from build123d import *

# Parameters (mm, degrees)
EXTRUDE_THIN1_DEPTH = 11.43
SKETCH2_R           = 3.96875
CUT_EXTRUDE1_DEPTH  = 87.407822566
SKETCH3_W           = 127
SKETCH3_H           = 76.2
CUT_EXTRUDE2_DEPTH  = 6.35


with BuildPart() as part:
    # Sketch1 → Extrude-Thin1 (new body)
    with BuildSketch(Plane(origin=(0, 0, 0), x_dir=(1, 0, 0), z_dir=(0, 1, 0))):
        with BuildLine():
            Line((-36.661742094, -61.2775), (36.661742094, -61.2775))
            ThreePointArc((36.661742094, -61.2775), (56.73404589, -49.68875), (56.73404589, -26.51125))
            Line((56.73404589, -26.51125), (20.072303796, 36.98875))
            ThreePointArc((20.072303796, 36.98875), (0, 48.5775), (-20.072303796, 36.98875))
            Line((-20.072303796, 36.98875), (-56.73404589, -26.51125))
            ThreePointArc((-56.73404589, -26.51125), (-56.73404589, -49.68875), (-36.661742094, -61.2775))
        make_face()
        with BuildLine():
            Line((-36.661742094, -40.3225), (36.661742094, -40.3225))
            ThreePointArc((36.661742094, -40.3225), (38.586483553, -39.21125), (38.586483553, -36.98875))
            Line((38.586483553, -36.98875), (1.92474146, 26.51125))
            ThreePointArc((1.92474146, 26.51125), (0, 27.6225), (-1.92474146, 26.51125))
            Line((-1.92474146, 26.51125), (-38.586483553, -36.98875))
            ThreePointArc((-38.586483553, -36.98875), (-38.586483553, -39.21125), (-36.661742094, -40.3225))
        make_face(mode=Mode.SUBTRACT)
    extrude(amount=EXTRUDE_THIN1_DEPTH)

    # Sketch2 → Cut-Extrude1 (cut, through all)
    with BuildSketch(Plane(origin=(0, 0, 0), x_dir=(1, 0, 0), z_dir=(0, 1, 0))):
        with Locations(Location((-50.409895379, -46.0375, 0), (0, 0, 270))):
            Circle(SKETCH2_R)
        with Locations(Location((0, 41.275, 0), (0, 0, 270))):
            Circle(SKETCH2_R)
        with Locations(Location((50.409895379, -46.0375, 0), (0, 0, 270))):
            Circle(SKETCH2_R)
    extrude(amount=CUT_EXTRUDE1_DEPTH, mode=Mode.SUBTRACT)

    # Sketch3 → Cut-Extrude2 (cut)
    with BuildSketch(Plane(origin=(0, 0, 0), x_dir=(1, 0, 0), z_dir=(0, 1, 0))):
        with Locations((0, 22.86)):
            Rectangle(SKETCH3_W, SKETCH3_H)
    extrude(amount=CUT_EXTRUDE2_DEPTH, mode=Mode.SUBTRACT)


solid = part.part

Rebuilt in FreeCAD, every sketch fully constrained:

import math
import FreeCAD as App
import Part
import Sketcher
Q = App.Units.Quantity

doc = App.newDocument("Part")
body = doc.addObject("PartDesign::Body", "Body")

sketch1 = body.newObject("Sketcher::SketchObject", "Sketch")
sketch1.AttachmentSupport = (doc.getObject("XZ_Plane"), [""])
sketch1.MapMode = "FlatFace"
sketch1.addGeometry([
    Part.LineSegment(App.Vector(-36.7, 61.3, 0), App.Vector(36.7, 61.3, 0)),
    Part.ArcOfCircle(Part.Circle(App.Vector(36.7, 38.1, 0), App.Vector(0, 0, 1), 23.2), math.radians(-30), math.radians(90)),
    Part.LineSegment(App.Vector(56.7, 26.5, 0), App.Vector(20.1, -37, 0)),
    Part.ArcOfCircle(Part.Circle(App.Vector(0, -25.4, 0), App.Vector(0, 0, 1), 23.2), math.radians(-150), math.radians(-30)),
    Part.LineSegment(App.Vector(-20.1, -37, 0), App.Vector(-56.7, 26.5, 0)),
    Part.ArcOfCircle(Part.Circle(App.Vector(-36.7, 38.1, 0), App.Vector(0, 0, 1), 23.2), math.radians(90), math.radians(210)),
    Part.LineSegment(App.Vector(36.7, 40.3, 0), App.Vector(-36.7, 40.3, 0)),
    Part.ArcOfCircle(Part.Circle(App.Vector(-36.7, 38.1, 0), App.Vector(0, 0, 1), 2.2), math.radians(90), math.radians(210)),
    Part.LineSegment(App.Vector(-38.6, 37, 0), App.Vector(-1.9, -26.5, 0)),
    Part.ArcOfCircle(Part.Circle(App.Vector(0, -25.4, 0), App.Vector(0, 0, 1), 2.2), math.radians(-150), math.radians(-30)),
    Part.LineSegment(App.Vector(1.9, -26.5, 0), App.Vector(38.6, 37, 0)),
    Part.ArcOfCircle(Part.Circle(App.Vector(36.7, 38.1, 0), App.Vector(0, 0, 1), 2.2), math.radians(-30), math.radians(90)),
], False)
sketch1.addConstraint([
    Sketcher.Constraint("Tangent", 0, 2, 1, 2),
    Sketcher.Constraint("Tangent", 1, 1, 2, 1),
    Sketcher.Constraint("Tangent", 2, 2, 3, 2),
    Sketcher.Constraint("Tangent", 3, 1, 4, 1),
    Sketcher.Constraint("Tangent", 4, 2, 5, 2),
    Sketcher.Constraint("Tangent", 5, 1, 0, 1),
    Sketcher.Constraint("Tangent", 6, 2, 7, 1),
    Sketcher.Constraint("Tangent", 7, 2, 8, 1),
    Sketcher.Constraint("Tangent", 8, 2, 9, 1),
    Sketcher.Constraint("Tangent", 9, 2, 10, 1),
    Sketcher.Constraint("Tangent", 10, 2, 11, 1),
    Sketcher.Constraint("Tangent", 11, 2, 6, 1),
    Sketcher.Constraint("Horizontal", 0),
    Sketcher.Constraint("Horizontal", 6),
    Sketcher.Constraint("Coincident", 7, 3, 5, 3),
    Sketcher.Constraint("Coincident", 9, 3, 3, 3),
    Sketcher.Constraint("Coincident", 11, 3, 1, 3),
    Sketcher.Constraint("Equal", 1, 3),
    Sketcher.Constraint("Equal", 3, 5),
    Sketcher.Constraint("Equal", 7, 9),
    Sketcher.Constraint("Symmetric", 2, 2, 3, 1, -2),
    Sketcher.Constraint("DistanceY", 3, 3, -1, 1, Q("1 in")),
    Sketcher.Constraint("Angle", 2, Q("-120 deg")),
    Sketcher.Constraint("DistanceY", -1, 1, 1, 3, Q("1.5 in")),
    Sketcher.Constraint("Radius", 1, Q("0.9125 in")),
    Sketcher.Constraint("Radius", 7, Q("0.0875 in")),
])
pad1 = body.newObject("PartDesign::Pad", "Pad")
pad1.Profile = sketch1
pad1.Length = Q("0.45 in")
pad1.Reversed = True

sketch2 = body.newObject("Sketcher::SketchObject", "Sketch001")
sketch2.AttachmentSupport = (doc.getObject("XZ_Plane"), [""])
sketch2.MapMode = "FlatFace"
sketch2.addGeometry([
    Part.Circle(App.Vector(-50.4, 46, 0), App.Vector(0, 0, 1), 4),
    Part.Circle(App.Vector(0, -41.3, 0), App.Vector(0, 0, 1), 4),
    Part.Circle(App.Vector(50.4, 46, 0), App.Vector(0, 0, 1), 4),
], False)
sketch2.addConstraint([
    Sketcher.Constraint("Equal", 0, 1),
    Sketcher.Constraint("Equal", 1, 2),
    Sketcher.Constraint("Symmetric", 0, 3, 2, 3, -2),
    Sketcher.Constraint("PointOnObject", 1, 3, -2),
    Sketcher.Constraint("Diameter", 0, Q("0.3125 in")),
    Sketcher.Constraint("DistanceY", -1, 1, 0, 3, Q("1.8125 in")),
    Sketcher.Constraint("DistanceY", 1, 3, -1, 1, Q("1.625 in")),
    Sketcher.Constraint("DistanceX", 0, 3, 2, 3, 100.819791),
])
pocket1 = body.newObject("PartDesign::Pocket", "Pocket")
pocket1.Profile = sketch2
pocket1.Type = "ThroughAll"

sketch3 = body.newObject("Sketcher::SketchObject", "Sketch002")
sketch3.AttachmentSupport = (doc.getObject("XZ_Plane"), [""])
sketch3.MapMode = "FlatFace"
sketch3.addGeometry([
    Part.LineSegment(App.Vector(-64, -61, 0), App.Vector(-64, 15, 0)),
    Part.LineSegment(App.Vector(-64, 15, 0), App.Vector(64, 15, 0)),
    Part.LineSegment(App.Vector(64, 15, 0), App.Vector(64, -61, 0)),
    Part.LineSegment(App.Vector(64, -61, 0), App.Vector(-64, -61, 0)),
], False)
sketch3.addConstraint([
    Sketcher.Constraint("Coincident", 0, 2, 1, 1),
    Sketcher.Constraint("Coincident", 1, 2, 2, 1),
    Sketcher.Constraint("Coincident", 2, 2, 3, 1),
    Sketcher.Constraint("Coincident", 3, 2, 0, 1),
    Sketcher.Constraint("Vertical", 0),
    Sketcher.Constraint("Horizontal", 1),
    Sketcher.Constraint("Vertical", 2),
    Sketcher.Constraint("Horizontal", 3),
    Sketcher.Constraint("DistanceX", 1, 1, 1, 2, Q("5 in")),
    Sketcher.Constraint("DistanceY", 0, 1, 0, 2, Q("3 in")),
    Sketcher.Constraint("DistanceX", 0, 2, -1, 1, Q("2.5 in")),
    Sketcher.Constraint("DistanceY", -1, 1, 0, 2, Q("0.6 in")),
])
pocket2 = body.newObject("PartDesign::Pocket", "Pocket001")
pocket2.Profile = sketch3
pocket2.Length = Q("0.25 in")

doc.recompute()
